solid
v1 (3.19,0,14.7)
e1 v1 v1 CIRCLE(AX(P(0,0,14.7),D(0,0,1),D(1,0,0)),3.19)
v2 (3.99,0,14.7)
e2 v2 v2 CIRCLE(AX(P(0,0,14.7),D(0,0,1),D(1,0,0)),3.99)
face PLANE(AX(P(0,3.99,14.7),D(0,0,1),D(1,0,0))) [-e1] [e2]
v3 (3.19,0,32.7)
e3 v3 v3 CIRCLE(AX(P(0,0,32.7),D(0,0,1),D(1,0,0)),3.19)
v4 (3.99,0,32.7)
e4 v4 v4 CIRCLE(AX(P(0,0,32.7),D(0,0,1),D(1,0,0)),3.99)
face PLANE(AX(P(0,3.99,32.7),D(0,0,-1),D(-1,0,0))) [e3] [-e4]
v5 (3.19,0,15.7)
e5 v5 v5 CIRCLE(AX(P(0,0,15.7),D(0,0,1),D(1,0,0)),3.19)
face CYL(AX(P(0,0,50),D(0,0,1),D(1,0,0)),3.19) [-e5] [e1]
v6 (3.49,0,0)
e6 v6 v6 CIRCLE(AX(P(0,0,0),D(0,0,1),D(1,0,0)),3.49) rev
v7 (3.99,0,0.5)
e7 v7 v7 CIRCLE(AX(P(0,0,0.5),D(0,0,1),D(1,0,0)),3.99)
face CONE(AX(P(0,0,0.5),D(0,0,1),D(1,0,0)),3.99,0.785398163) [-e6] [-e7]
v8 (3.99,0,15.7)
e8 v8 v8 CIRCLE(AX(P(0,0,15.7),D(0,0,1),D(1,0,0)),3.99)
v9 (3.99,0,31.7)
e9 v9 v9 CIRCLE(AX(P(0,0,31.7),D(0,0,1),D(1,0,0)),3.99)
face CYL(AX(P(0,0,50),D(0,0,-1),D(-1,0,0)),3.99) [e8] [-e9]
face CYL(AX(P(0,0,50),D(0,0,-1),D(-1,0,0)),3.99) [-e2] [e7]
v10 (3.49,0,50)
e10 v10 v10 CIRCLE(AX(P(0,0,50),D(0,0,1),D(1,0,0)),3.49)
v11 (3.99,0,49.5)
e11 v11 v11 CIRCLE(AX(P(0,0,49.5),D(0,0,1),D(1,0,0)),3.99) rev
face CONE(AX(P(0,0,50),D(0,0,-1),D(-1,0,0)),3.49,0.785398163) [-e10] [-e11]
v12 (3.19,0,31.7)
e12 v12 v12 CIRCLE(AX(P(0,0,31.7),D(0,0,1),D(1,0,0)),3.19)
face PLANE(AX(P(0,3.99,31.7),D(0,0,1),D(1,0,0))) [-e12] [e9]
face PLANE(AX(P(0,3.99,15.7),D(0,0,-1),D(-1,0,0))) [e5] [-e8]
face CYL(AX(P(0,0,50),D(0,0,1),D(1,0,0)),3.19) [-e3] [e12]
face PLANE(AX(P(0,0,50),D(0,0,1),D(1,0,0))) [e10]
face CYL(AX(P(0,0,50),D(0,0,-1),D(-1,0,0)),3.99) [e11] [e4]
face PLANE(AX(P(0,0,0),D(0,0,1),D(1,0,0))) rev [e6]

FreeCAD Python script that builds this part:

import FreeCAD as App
import Part
import Sketcher
from FreeCAD import Vector
Q = App.Units.Quantity


def edges_at(feature, points):
    """Names of the edges that pass closest to the given points."""
    edges = feature.Shape.Edges
    near = lambda p: min(range(len(edges)), key=lambda i: edges[i].distToShape(Part.Vertex(*p))[0])
    return sorted({f"Edge{near(p) + 1}" for p in points})


def add_polygon(sketch, points):
    """Adds a closed chain of lines whose ends are joined by coincident constraints."""
    first, n = sketch.GeometryCount, len(points)
    for a, b in zip(points, points[1:] + points[:1]):
        sketch.addGeometry(Part.LineSegment(App.Vector(*a, 0), App.Vector(*b, 0)), False)
    for i in range(n):
        sketch.addConstraint(Sketcher.Constraint("Coincident", first + i, 2, first + (i + 1) % n, 1))

doc = App.newDocument("Part")
body = doc.addObject("PartDesign::Body", "Body")

# Sketch on XY plane
sketch1 = doc.addObject("Sketcher::SketchObject", "Sketch")
body.addObject(sketch1)
sketch1.AttachmentSupport = (doc.XY_Plane, [""])
sketch1.MapMode = "FlatFace"
sketch1.addGeometry(Part.Circle(Vector(0, 0, 0), Vector(0, 0, 1), 4), False)
sketch1.addConstraint(Sketcher.Constraint("Coincident", 0, 3, -1, 1))
sketch1.addConstraint(Sketcher.Constraint("Diameter", 0, Q("7.98 mm")))
pad1 = doc.addObject("PartDesign::Pad", "Pad")
body.addObject(pad1)
pad1.Profile = sketch1
pad1.Length = 50

# Sketch on YZ plane
sketch2 = doc.addObject("Sketcher::SketchObject", "Sketch001")
body.addObject(sketch2)
sketch2.AttachmentSupport = (doc.YZ_Plane, [""])
sketch2.MapMode = "FlatFace"
add_polygon(sketch2, [(4, 15.7), (3.2, 15.7), (3.2, 14.7), (4, 14.7)])  # lines 0-3
add_polygon(sketch2, [(4, 32.7), (3.2, 32.7), (3.2, 31.7), (4, 31.7)])  # lines 4-7
sketch2.addConstraint(Sketcher.Constraint("Horizontal", 0))
sketch2.addConstraint(Sketcher.Constraint("Vertical", 1))
sketch2.addConstraint(Sketcher.Constraint("Horizontal", 2))
sketch2.addConstraint(Sketcher.Constraint("Vertical", 3))
sketch2.addConstraint(Sketcher.Constraint("Horizontal", 4))
sketch2.addConstraint(Sketcher.Constraint("Vertical", 5))
sketch2.addConstraint(Sketcher.Constraint("Horizontal", 6))
sketch2.addConstraint(Sketcher.Constraint("Vertical", 7))
sketch2.addConstraint(Sketcher.Constraint("Vertical", 1, 2, 4, 2))
sketch2.addConstraint(Sketcher.Constraint("Vertical", 3, 2, 6, 2))
sketch2.addConstraint(Sketcher.Constraint("Equal", 3, 5))
sketch2.addConstraint(Sketcher.Constraint("DistanceY", 1, 2, 1, 1, Q("1 mm")))
sketch2.addConstraint(Sketcher.Constraint("DistanceX", 0, 2, 0, 1, Q("0.8 mm")))
sketch2.addConstraint(Sketcher.Constraint("DistanceY", 0, 2, 4, 2, Q("17 mm")))
sketch2.addConstraint(Sketcher.Constraint("DistanceY", -1, 1, 0, 2, Q("15.7 mm")))
sketch2.addConstraint(Sketcher.Constraint("DistanceX", -1, 1, 0, 2, Q("3.19 mm")))
groove = doc.addObject("PartDesign::Groove", "Groove")
body.addObject(groove)
groove.Profile = sketch2
groove.ReferenceAxis = (sketch2, ["V_Axis"])
groove.Angle = 360
doc.recompute()

chamfer = doc.addObject("PartDesign::Chamfer", "Chamfer")
body.addObject(chamfer)
chamfer.Base = (groove, edges_at(groove, [(-3.99, 0, 0), (-3.99, 0, 50)]))
chamfer.Size = 0.5

doc.recompute()
